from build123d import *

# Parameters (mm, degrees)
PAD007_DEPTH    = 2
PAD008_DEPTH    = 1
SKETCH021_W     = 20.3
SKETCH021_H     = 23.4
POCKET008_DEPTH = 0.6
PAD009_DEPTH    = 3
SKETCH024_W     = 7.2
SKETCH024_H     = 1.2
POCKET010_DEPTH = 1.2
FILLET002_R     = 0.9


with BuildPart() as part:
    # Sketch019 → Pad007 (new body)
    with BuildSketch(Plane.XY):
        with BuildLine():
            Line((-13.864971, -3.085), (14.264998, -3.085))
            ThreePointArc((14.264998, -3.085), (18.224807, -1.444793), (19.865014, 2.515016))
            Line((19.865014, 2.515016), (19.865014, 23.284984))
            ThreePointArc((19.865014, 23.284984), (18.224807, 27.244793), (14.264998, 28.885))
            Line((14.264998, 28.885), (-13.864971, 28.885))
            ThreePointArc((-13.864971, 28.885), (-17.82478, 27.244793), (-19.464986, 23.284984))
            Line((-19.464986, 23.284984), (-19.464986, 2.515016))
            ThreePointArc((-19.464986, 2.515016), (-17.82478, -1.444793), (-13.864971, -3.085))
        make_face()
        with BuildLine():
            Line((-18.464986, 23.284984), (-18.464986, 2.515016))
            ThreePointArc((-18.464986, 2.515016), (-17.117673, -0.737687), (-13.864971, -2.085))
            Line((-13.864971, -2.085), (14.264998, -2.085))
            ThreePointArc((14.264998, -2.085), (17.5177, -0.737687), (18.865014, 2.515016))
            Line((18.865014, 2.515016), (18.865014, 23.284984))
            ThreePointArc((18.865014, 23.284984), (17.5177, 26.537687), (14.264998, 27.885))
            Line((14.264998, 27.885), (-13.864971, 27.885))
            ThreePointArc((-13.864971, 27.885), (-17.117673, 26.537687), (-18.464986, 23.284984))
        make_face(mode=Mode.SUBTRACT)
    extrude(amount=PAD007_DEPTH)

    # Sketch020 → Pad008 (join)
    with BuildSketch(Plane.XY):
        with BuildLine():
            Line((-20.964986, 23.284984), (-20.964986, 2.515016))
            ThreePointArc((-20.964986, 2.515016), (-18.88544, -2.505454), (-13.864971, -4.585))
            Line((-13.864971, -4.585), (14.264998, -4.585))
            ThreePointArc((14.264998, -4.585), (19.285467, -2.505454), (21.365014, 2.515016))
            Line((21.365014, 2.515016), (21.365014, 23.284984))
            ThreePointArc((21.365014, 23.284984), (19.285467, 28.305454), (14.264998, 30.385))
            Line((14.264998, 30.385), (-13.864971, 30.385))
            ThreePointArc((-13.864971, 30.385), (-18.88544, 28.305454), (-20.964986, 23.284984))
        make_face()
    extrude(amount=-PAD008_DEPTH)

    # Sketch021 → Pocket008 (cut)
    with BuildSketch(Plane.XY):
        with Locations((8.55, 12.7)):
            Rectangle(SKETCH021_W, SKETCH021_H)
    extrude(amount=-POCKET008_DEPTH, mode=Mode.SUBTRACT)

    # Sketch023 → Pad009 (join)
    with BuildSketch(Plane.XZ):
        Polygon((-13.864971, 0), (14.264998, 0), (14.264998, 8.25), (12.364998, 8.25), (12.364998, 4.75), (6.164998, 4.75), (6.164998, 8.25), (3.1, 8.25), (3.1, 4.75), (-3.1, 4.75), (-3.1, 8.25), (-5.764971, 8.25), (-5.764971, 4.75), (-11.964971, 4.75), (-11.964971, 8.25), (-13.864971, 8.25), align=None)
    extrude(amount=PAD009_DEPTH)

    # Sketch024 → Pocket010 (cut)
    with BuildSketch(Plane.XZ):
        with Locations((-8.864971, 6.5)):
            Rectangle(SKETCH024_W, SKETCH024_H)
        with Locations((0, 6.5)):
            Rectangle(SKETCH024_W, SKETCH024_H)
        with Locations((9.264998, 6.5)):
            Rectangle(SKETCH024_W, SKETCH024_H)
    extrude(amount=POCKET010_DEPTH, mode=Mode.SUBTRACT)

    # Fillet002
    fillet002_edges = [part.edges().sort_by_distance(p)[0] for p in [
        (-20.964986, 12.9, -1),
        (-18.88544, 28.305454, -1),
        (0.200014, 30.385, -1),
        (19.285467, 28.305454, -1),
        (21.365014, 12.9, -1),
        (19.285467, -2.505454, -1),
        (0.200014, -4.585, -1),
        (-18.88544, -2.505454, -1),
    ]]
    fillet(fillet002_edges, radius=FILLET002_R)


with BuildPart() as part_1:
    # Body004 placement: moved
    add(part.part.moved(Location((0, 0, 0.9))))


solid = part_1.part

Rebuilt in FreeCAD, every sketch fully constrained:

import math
import FreeCAD as App
import Part
import Sketcher


def edges_at(feature, points):
    """Names of the edges that pass closest to the given points."""
    edges = feature.Shape.Edges
    near = lambda p: min(range(len(edges)), key=lambda i: edges[i].distToShape(Part.Vertex(*p))[0])
    return sorted({f"Edge{near(p) + 1}" for p in points})


def add_polygon(sketch, points):
    """Adds a closed chain of lines whose ends are joined by coincident constraints."""
    first, n = sketch.GeometryCount, len(points)
    for a, b in zip(points, points[1:] + points[:1]):
        sketch.addGeometry(Part.LineSegment(App.Vector(*a, 0), App.Vector(*b, 0)), False)
    for i in range(n):
        sketch.addConstraint(Sketcher.Constraint("Coincident", first + i, 2, first + (i + 1) % n, 1))

doc = App.newDocument("Part")
body = doc.addObject("PartDesign::Body", "Body")

# Sketch on XY plane
sketch1 = body.newObject("Sketcher::SketchObject", "Sketch")
sketch1.AttachmentSupport = (doc.getObject("XY_Plane"), [""])
sketch1.MapMode = "FlatFace"
sketch1.addGeometry([
    Part.LineSegment(App.Vector(-13.864971, -3.085, 0), App.Vector(14.264998, -3.085, 0)),  # 0
    Part.ArcOfCircle(Part.Circle(App.Vector(14.264997, 2.515017, 0), App.Vector(0, 0, 1), 5.600017), math.radians(-89.99999), math.radians(-0.00001)),  # 1
    Part.LineSegment(App.Vector(19.865014, 2.515016, 0), App.Vector(19.865014, 23.284984, 0)),  # 2
    Part.ArcOfCircle(Part.Circle(App.Vector(14.264997, 23.284983, 0), App.Vector(0, 0, 1), 5.600017), math.radians(0.00001), math.radians(89.99999)),  # 3
    Part.LineSegment(App.Vector(14.264998, 28.885, 0), App.Vector(-13.864971, 28.885, 0)),  # 4
    Part.ArcOfCircle(Part.Circle(App.Vector(-13.864971, 23.284985, 0), App.Vector(0, 0, 1), 5.600015), math.radians(90.000003), math.radians(180.000007)),  # 5
    Part.LineSegment(App.Vector(-19.464986, 23.284984, 0), App.Vector(-19.464986, 2.515016, 0)),  # 6
    Part.ArcOfCircle(Part.Circle(App.Vector(-13.864971, 2.515015, 0), App.Vector(0, 0, 1), 5.600015), math.radians(179.999993), math.radians(269.999997)),  # 7
    Part.LineSegment(App.Vector(-18.464986, 2.515016, 0), App.Vector(-18.464986, 23.284984, 0)),  # 8
    Part.ArcOfCircle(Part.Circle(App.Vector(-13.864972, 23.284986, 0), App.Vector(0, 0, 1), 4.600014), math.radians(89.999991), math.radians(180.000021)),  # 9
    Part.LineSegment(App.Vector(-13.864971, 27.885, 0), App.Vector(14.264998, 27.885, 0)),  # 10
    Part.ArcOfCircle(Part.Circle(App.Vector(14.264998, 23.284984, 0), App.Vector(0, 0, 1), 4.600016), math.radians(0), math.radians(90)),  # 11
    Part.LineSegment(App.Vector(18.865014, 23.284984, 0), App.Vector(18.865014, 2.515016, 0)),  # 12
    Part.ArcOfCircle(Part.Circle(App.Vector(14.264998, 2.515016, 0), App.Vector(0, 0, 1), 4.600016), math.radians(-90), math.radians(0)),  # 13
    Part.LineSegment(App.Vector(14.264998, -2.085, 0), App.Vector(-13.864971, -2.085, 0)),  # 14
    Part.ArcOfCircle(Part.Circle(App.Vector(-13.864972, 2.515014, 0), App.Vector(0, 0, 1), 4.600014), math.radians(179.999979), math.radians(270.000009)),  # 15
], False)
sketch1.addConstraint([
    Sketcher.Constraint("Tangent", 0, 2, 1, 1),
    Sketcher.Constraint("Tangent", 1, 2, 2, 1),
    Sketcher.Constraint("Tangent", 2, 2, 3, 1),
    Sketcher.Constraint("Tangent", 3, 2, 4, 1),
    Sketcher.Constraint("Tangent", 4, 2, 5, 1),
    Sketcher.Constraint("Tangent", 5, 2, 6, 1),
    Sketcher.Constraint("Tangent", 6, 2, 7, 1),
    Sketcher.Constraint("Tangent", 7, 2, 0, 1),
    Sketcher.Constraint("Tangent", 8, 2, 9, 2),
    Sketcher.Constraint("Tangent", 9, 1, 10, 1),
    Sketcher.Constraint("Tangent", 10, 2, 11, 2),
    Sketcher.Constraint("Tangent", 11, 1, 12, 1),
    Sketcher.Constraint("Tangent", 12, 2, 13, 2),
    Sketcher.Constraint("Tangent", 13, 1, 14, 1),
    Sketcher.Constraint("Tangent", 14, 2, 15, 2),
    Sketcher.Constraint("Tangent", 15, 1, 8, 1),
    Sketcher.Constraint("Horizontal", 0),
    Sketcher.Constraint("Vertical", 2),
    Sketcher.Constraint("Horizontal", 4),
    Sketcher.Constraint("Vertical", 6),
    Sketcher.Constraint("Vertical", 8),
    Sketcher.Constraint("Horizontal", 10),
    Sketcher.Constraint("Vertical", 12),
    Sketcher.Constraint("Horizontal", 14),
    Sketcher.Constraint("Coincident", 9, 3, 5, 3),
    Sketcher.Constraint("Coincident", 11, 3, 3, 3),
    Sketcher.Constraint("Coincident", 13, 3, 1, 3),
    Sketcher.Constraint("Equal", 1, 3),
    Sketcher.Constraint("Equal", 3, 5),
    Sketcher.Constraint("Equal", 5, 7),
    Sketcher.Constraint("Equal", 13, 15),
    Sketcher.Constraint("DistanceX", 5, 2, 8, 2, 1.0),
    Sketcher.Constraint("DistanceY", 0, 2, -1, 1, 3.085),
    Sketcher.Constraint("DistanceY", -1, 1, 3, 2, 28.885),
    Sketcher.Constraint("Radius", 1, 5.600017),
    Sketcher.Constraint("DistanceX", 0, 1, 0, 2, 28.129969),
    Sketcher.Constraint("DistanceX", 5, 3, -1, 1, 13.864971),
])
pad1 = body.newObject("PartDesign::Pad", "Pad")
pad1.Profile = sketch1
pad1.Length = 2

# Sketch on XY plane
sketch2 = body.newObject("Sketcher::SketchObject", "Sketch001")
sketch2.AttachmentSupport = (doc.getObject("XY_Plane"), [""])
sketch2.MapMode = "FlatFace"
sketch2.addGeometry([
    Part.LineSegment(App.Vector(-20.964986, 23.284984, 0), App.Vector(-20.964986, 2.515016, 0)),  # 0
    Part.ArcOfCircle(Part.Circle(App.Vector(-13.864972, 2.515014, 0), App.Vector(0, 0, 1), 7.100014), math.radians(179.999985), math.radians(270.000007)),  # 1
    Part.LineSegment(App.Vector(-13.864971, -4.585, 0), App.Vector(14.264998, -4.585, 0)),  # 2
    Part.ArcOfCircle(Part.Circle(App.Vector(14.264998, 2.515016, 0), App.Vector(0, 0, 1), 7.100016), math.radians(-90.000001), math.radians(0.000001)),  # 3
    Part.LineSegment(App.Vector(21.365014, 2.515016, 0), App.Vector(21.365014, 23.284984, 0)),  # 4
    Part.ArcOfCircle(Part.Circle(App.Vector(14.264998, 23.284984, 0), App.Vector(0, 0, 1), 7.100016), math.radians(-0.000001), math.radians(90.000001)),  # 5
    Part.LineSegment(App.Vector(14.264998, 30.385, 0), App.Vector(-13.864971, 30.385, 0)),  # 6
    Part.ArcOfCircle(Part.Circle(App.Vector(-13.864972, 23.284986, 0), App.Vector(0, 0, 1), 7.100014), math.radians(89.999993), math.radians(180.000015)),  # 7
], False)
sketch2.addConstraint([
    Sketcher.Constraint("Tangent", 0, 2, 1, 1),
    Sketcher.Constraint("Tangent", 1, 2, 2, 1),
    Sketcher.Constraint("Tangent", 2, 2, 3, 1),
    Sketcher.Constraint("Tangent", 3, 2, 4, 1),
    Sketcher.Constraint("Tangent", 4, 2, 5, 1),
    Sketcher.Constraint("Tangent", 5, 2, 6, 1),
    Sketcher.Constraint("Tangent", 6, 2, 7, 1),
    Sketcher.Constraint("Tangent", 7, 2, 0, 1),
    Sketcher.Constraint("Vertical", 0),
    Sketcher.Constraint("Horizontal", 2),
    Sketcher.Constraint("Vertical", 4),
    Sketcher.Constraint("Horizontal", 6),
    Sketcher.Constraint("Equal", 1, 3),
    Sketcher.Constraint("Equal", 3, 5),
    Sketcher.Constraint("Equal", 5, 7),
    Sketcher.Constraint("DistanceX", -1, 1, 3, 3, 14.264998),
    Sketcher.Constraint("DistanceY", 1, 2, -1, 1, 4.585),
    Sketcher.Constraint("DistanceY", -1, 1, 5, 2, 30.385),
    Sketcher.Constraint("Radius", 1, 7.100014),
    Sketcher.Constraint("DistanceX", 2, 1, 2, 2, 28.129969),
])
pad2 = body.newObject("PartDesign::Pad", "Pad001")
pad2.Profile = sketch2
pad2.Length = 1
pad2.Reversed = True

# Sketch on XY plane
sketch3 = body.newObject("Sketcher::SketchObject", "Sketch002")
sketch3.AttachmentSupport = (doc.getObject("XY_Plane"), [""])
sketch3.MapMode = "FlatFace"
add_polygon(sketch3, [(-1.6, 24.4), (-1.6, 1), (18.7, 1), (18.7, 24.4)])  # lines 0-3
sketch3.addConstraint([
    Sketcher.Constraint("Vertical", 0),
    Sketcher.Constraint("Horizontal", 1),
    Sketcher.Constraint("Vertical", 2),
    Sketcher.Constraint("Horizontal", 3),
    Sketcher.Constraint("DistanceX", 1, 1, 1, 2, 20.3),
    Sketcher.Constraint("DistanceY", 0, 2, 0, 1, 23.4),
    Sketcher.Constraint("DistanceY", -1, 1, 0, 2, 1.0),
    Sketcher.Constraint("DistanceX", 0, 2, -1, 1, 1.6),
])
pocket1 = body.newObject("PartDesign::Pocket", "Pocket")
pocket1.Profile = sketch3
pocket1.Length = 0.6

# Sketch on XZ plane
sketch4 = body.newObject("Sketcher::SketchObject", "Sketch003")
sketch4.AttachmentSupport = (doc.getObject("XZ_Plane"), [""])
sketch4.MapMode = "FlatFace"
add_polygon(sketch4, [(-13.864971, 0), (14.264998, 0), (14.264998, 8.25), (12.364998, 8.25), (12.364998, 4.75), (6.164998, 4.75), (6.164998, 8.25), (3.1, 8.25), (3.1, 4.75), (-3.1, 4.75), (-3.1, 8.25), (-5.764971, 8.25), (-5.764971, 4.75), (-11.964971, 4.75), (-11.964971, 8.25), (-13.864971, 8.25)])  # lines 0-15
sketch4.addConstraint([
    Sketcher.Constraint("Horizontal", 0),
    Sketcher.Constraint("Vertical", 1),
    Sketcher.Constraint("Horizontal", 2),
    Sketcher.Constraint("Vertical", 3),
    Sketcher.Constraint("Horizontal", 4),
    Sketcher.Constraint("Vertical", 5),
    Sketcher.Constraint("Horizontal", 6),
    Sketcher.Constraint("Vertical", 7),
    Sketcher.Constraint("Horizontal", 8),
    Sketcher.Constraint("Vertical", 9),
    Sketcher.Constraint("Horizontal", 10),
    Sketcher.Constraint("Vertical", 11),
    Sketcher.Constraint("Horizontal", 12),
    Sketcher.Constraint("Vertical", 13),
    Sketcher.Constraint("Horizontal", 14),
    Sketcher.Constraint("Vertical", 15),
    Sketcher.Constraint("Symmetric", 6, 2, 9, 2, -2),
    Sketcher.Constraint("PointOnObject", 0, 2, -1),
    Sketcher.Constraint("Horizontal", 2, 2, 5, 2),
    Sketcher.Constraint("Horizontal", 4, 2, 7, 2),
    Sketcher.Constraint("Horizontal", 8, 2, 11, 2),
    Sketcher.Constraint("Horizontal", 10, 2, 13, 2),
    Sketcher.Constraint("Equal", 4, 8),
    Sketcher.Constraint("Equal", 8, 12),
    Sketcher.Constraint("Equal", 2, 14),
    Sketcher.Constraint("DistanceX", 2, 2, 2, 1, 1.9),
    Sketcher.Constraint("DistanceX", 4, 2, 4, 1, 6.2),
    Sketcher.Constraint("DistanceY", 3, 2, 3, 1, 3.5),
    Sketcher.Constraint("DistanceY", 1, 1, 1, 2, 8.25),
    Sketcher.Constraint("DistanceX", 6, 2, 1, 2, 11.164998),
    Sketcher.Constraint("DistanceX", 0, 1, 0, 2, 28.129969),
])
pad3 = body.newObject("PartDesign::Pad", "Pad002")
pad3.Profile = sketch4
pad3.Length = 3

# Sketch on XZ plane
sketch5 = body.newObject("Sketcher::SketchObject", "Sketch004")
sketch5.AttachmentSupport = (doc.getObject("XZ_Plane"), [""])
sketch5.MapMode = "FlatFace"
add_polygon(sketch5, [(-12.464971, 7.1), (-12.464971, 5.9), (-5.264971, 5.9), (-5.264971, 7.1)])  # lines 0-3
add_polygon(sketch5, [(-3.6, 7.1), (-3.6, 5.9), (3.6, 5.9), (3.6, 7.1)])  # lines 4-7
add_polygon(sketch5, [(5.664998, 7.1), (5.664998, 5.9), (12.864998, 5.9), (12.864998, 7.1)])  # lines 8-11
sketch5.addConstraint([
    Sketcher.Constraint("Vertical", 0),
    Sketcher.Constraint("Horizontal", 1),
    Sketcher.Constraint("Vertical", 2),
    Sketcher.Constraint("Horizontal", 3),
    Sketcher.Constraint("Vertical", 4),
    Sketcher.Constraint("Horizontal", 5),
    Sketcher.Constraint("Vertical", 6),
    Sketcher.Constraint("Horizontal", 7),
    Sketcher.Constraint("Vertical", 8),
    Sketcher.Constraint("Horizontal", 9),
    Sketcher.Constraint("Vertical", 10),
    Sketcher.Constraint("Horizontal", 11),
    Sketcher.Constraint("Horizontal", 1, 2, 4, 2),
    Sketcher.Constraint("Horizontal", 3, 2, 6, 2),
    Sketcher.Constraint("Horizontal", 5, 2, 8, 2),
    Sketcher.Constraint("Horizontal", 7, 2, 10, 2),
    Sketcher.Constraint("Equal", 3, 5),
    Sketcher.Constraint("Equal", 7, 9),
    Sketcher.Constraint("DistanceX", 1, 1, 1, 2, 7.2),
    Sketcher.Constraint("DistanceY", 0, 2, 0, 1, 1.2),
    Sketcher.Constraint("DistanceY", -1, 1, 0, 2, 5.9),
    Sketcher.Constraint("DistanceX", 4, 2, -1, 1, 3.6),
    Sketcher.Constraint("DistanceX", 4, 2, 9, 2, 16.464998),
    Sketcher.Constraint("DistanceX", 0, 2, -1, 1, 12.464971),
])
pocket2 = body.newObject("PartDesign::Pocket", "Pocket001")
pocket2.Profile = sketch5
pocket2.Length = 1.2
pocket2.Reversed = True
doc.recompute()

fillet = body.newObject("PartDesign::Fillet", "Fillet")
fillet.Base = (pocket2, edges_at(pocket2, [
    (-20.965, 12.9, -1),
    (-18.885, 28.305, -1),
    (0.2, 30.385, -1),
    (19.285, 28.305, -1),
    (21.365, 12.9, -1),
    (19.285, -2.505, -1),
    (0.2, -4.585, -1),
    (-18.885, -2.505, -1),
]))
fillet.Radius = 0.9
body2 = doc.addObject("PartDesign::Body", "Body001")
doc.recompute()

body.Placement = App.Placement(App.Vector(0, 0, 0.9), App.Rotation(App.Vector(0, 0, 1), 0))
boolean = body2.newObject("PartDesign::Boolean", "Boolean")
boolean.Type = "Fuse"
boolean.addObjects([body])

doc.recompute()
